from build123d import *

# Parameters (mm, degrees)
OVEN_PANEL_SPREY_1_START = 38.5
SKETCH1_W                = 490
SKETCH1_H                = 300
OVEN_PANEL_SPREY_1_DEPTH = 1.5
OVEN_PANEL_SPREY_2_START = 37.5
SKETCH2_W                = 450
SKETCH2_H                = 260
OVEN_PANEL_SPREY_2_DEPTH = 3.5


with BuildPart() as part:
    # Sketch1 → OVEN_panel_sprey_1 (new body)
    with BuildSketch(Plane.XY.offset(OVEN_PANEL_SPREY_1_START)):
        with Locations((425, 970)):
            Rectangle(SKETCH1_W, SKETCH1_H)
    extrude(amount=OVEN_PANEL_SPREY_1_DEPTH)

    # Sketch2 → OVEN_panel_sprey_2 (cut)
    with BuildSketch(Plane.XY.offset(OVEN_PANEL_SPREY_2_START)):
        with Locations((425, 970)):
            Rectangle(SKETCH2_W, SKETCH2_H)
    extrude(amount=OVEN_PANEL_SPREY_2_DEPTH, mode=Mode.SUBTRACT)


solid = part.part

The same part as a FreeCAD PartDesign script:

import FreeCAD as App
import Part
import Sketcher
Q = App.Units.Quantity


def add_polygon(sketch, points):
    """Adds a closed chain of lines whose ends are joined by coincident constraints."""
    first, n = sketch.GeometryCount, len(points)
    for a, b in zip(points, points[1:] + points[:1]):
        sketch.addGeometry(Part.LineSegment(App.Vector(*a, 0), App.Vector(*b, 0)), False)
    for i in range(n):
        sketch.addConstraint(Sketcher.Constraint("Coincident", first + i, 2, first + (i + 1) % n, 1))

doc = App.newDocument("Part")
params = doc.addObject("Spreadsheet::Sheet", "Params")
for row, (alias, value) in enumerate([
    ("sketch1_width", "490 mm"),
    ("sketch1_height", "300 mm"),
    ("pad1_length", "1.5 mm"),
    ("sketch2_width", "450 mm"),
    ("sketch2_height", "260 mm"),
    ("pocket1_length", "3.5 mm"),
], start=1):
    params.set(f"A{row}", alias)
    params.set(f"B{row}", "=" + value)
    params.setAlias(f"B{row}", alias)

body = doc.addObject("PartDesign::Body", "Body")

# Sketch on XY plane
sketch1 = doc.addObject("Sketcher::SketchObject", "Sketch")
body.addObject(sketch1)
sketch1.AttachmentSupport = (doc.XY_Plane, [""])
sketch1.MapMode = "FlatFace"
sketch1.AttachmentOffset = App.Placement(App.Vector(0, 0, 38.5), App.Rotation())
add_polygon(sketch1, [(180, 1120), (180, 820), (670, 820), (670, 1120)])  # lines 0-3
sketch1.addConstraint([
    Sketcher.Constraint("Vertical", 0),
    Sketcher.Constraint("Horizontal", 1),
    Sketcher.Constraint("Vertical", 2),
    Sketcher.Constraint("Horizontal", 3),
    Sketcher.Constraint("DistanceX", 1, 1, 1, 2, Q("490 mm")),
    Sketcher.Constraint("DistanceY", 0, 2, 0, 1, Q("300 mm")),
    Sketcher.Constraint("DistanceX", -1, 1, 0, 2, Q("180 mm")),
    Sketcher.Constraint("DistanceY", -1, 1, 0, 2, Q("820 mm")),
])
sketch1.setExpression("Constraints[8]", "Params.sketch1_width")
sketch1.setExpression("Constraints[9]", "Params.sketch1_height")
pad1 = doc.addObject("PartDesign::Pad", "Pad")
body.addObject(pad1)
pad1.Profile = sketch1
pad1.setExpression("Length", "Params.pad1_length")

# Sketch on XY plane
sketch2 = doc.addObject("Sketcher::SketchObject", "Sketch001")
body.addObject(sketch2)
sketch2.AttachmentSupport = (doc.XY_Plane, [""])
sketch2.MapMode = "FlatFace"
sketch2.AttachmentOffset = App.Placement(App.Vector(0, 0, 37.5), App.Rotation())
add_polygon(sketch2, [(200, 1100), (200, 840), (650, 840), (650, 1100)])  # lines 0-3
sketch2.addConstraint([
    Sketcher.Constraint("Vertical", 0),
    Sketcher.Constraint("Horizontal", 1),
    Sketcher.Constraint("Vertical", 2),
    Sketcher.Constraint("Horizontal", 3),
    Sketcher.Constraint("DistanceX", 1, 1, 1, 2, Q("450 mm")),
    Sketcher.Constraint("DistanceY", 0, 2, 0, 1, Q("260 mm")),
    Sketcher.Constraint("DistanceX", -1, 1, 0, 2, Q("200 mm")),
    Sketcher.Constraint("DistanceY", -1, 1, 0, 2, Q("840 mm")),
])
sketch2.setExpression("Constraints[8]", "Params.sketch2_width")
sketch2.setExpression("Constraints[9]", "Params.sketch2_height")
pocket1 = doc.addObject("PartDesign::Pocket", "Pocket")
body.addObject(pocket1)
pocket1.Profile = sketch2
pocket1.setExpression("Length", "Params.pocket1_length")
pocket1.Reversed = True

doc.recompute()
